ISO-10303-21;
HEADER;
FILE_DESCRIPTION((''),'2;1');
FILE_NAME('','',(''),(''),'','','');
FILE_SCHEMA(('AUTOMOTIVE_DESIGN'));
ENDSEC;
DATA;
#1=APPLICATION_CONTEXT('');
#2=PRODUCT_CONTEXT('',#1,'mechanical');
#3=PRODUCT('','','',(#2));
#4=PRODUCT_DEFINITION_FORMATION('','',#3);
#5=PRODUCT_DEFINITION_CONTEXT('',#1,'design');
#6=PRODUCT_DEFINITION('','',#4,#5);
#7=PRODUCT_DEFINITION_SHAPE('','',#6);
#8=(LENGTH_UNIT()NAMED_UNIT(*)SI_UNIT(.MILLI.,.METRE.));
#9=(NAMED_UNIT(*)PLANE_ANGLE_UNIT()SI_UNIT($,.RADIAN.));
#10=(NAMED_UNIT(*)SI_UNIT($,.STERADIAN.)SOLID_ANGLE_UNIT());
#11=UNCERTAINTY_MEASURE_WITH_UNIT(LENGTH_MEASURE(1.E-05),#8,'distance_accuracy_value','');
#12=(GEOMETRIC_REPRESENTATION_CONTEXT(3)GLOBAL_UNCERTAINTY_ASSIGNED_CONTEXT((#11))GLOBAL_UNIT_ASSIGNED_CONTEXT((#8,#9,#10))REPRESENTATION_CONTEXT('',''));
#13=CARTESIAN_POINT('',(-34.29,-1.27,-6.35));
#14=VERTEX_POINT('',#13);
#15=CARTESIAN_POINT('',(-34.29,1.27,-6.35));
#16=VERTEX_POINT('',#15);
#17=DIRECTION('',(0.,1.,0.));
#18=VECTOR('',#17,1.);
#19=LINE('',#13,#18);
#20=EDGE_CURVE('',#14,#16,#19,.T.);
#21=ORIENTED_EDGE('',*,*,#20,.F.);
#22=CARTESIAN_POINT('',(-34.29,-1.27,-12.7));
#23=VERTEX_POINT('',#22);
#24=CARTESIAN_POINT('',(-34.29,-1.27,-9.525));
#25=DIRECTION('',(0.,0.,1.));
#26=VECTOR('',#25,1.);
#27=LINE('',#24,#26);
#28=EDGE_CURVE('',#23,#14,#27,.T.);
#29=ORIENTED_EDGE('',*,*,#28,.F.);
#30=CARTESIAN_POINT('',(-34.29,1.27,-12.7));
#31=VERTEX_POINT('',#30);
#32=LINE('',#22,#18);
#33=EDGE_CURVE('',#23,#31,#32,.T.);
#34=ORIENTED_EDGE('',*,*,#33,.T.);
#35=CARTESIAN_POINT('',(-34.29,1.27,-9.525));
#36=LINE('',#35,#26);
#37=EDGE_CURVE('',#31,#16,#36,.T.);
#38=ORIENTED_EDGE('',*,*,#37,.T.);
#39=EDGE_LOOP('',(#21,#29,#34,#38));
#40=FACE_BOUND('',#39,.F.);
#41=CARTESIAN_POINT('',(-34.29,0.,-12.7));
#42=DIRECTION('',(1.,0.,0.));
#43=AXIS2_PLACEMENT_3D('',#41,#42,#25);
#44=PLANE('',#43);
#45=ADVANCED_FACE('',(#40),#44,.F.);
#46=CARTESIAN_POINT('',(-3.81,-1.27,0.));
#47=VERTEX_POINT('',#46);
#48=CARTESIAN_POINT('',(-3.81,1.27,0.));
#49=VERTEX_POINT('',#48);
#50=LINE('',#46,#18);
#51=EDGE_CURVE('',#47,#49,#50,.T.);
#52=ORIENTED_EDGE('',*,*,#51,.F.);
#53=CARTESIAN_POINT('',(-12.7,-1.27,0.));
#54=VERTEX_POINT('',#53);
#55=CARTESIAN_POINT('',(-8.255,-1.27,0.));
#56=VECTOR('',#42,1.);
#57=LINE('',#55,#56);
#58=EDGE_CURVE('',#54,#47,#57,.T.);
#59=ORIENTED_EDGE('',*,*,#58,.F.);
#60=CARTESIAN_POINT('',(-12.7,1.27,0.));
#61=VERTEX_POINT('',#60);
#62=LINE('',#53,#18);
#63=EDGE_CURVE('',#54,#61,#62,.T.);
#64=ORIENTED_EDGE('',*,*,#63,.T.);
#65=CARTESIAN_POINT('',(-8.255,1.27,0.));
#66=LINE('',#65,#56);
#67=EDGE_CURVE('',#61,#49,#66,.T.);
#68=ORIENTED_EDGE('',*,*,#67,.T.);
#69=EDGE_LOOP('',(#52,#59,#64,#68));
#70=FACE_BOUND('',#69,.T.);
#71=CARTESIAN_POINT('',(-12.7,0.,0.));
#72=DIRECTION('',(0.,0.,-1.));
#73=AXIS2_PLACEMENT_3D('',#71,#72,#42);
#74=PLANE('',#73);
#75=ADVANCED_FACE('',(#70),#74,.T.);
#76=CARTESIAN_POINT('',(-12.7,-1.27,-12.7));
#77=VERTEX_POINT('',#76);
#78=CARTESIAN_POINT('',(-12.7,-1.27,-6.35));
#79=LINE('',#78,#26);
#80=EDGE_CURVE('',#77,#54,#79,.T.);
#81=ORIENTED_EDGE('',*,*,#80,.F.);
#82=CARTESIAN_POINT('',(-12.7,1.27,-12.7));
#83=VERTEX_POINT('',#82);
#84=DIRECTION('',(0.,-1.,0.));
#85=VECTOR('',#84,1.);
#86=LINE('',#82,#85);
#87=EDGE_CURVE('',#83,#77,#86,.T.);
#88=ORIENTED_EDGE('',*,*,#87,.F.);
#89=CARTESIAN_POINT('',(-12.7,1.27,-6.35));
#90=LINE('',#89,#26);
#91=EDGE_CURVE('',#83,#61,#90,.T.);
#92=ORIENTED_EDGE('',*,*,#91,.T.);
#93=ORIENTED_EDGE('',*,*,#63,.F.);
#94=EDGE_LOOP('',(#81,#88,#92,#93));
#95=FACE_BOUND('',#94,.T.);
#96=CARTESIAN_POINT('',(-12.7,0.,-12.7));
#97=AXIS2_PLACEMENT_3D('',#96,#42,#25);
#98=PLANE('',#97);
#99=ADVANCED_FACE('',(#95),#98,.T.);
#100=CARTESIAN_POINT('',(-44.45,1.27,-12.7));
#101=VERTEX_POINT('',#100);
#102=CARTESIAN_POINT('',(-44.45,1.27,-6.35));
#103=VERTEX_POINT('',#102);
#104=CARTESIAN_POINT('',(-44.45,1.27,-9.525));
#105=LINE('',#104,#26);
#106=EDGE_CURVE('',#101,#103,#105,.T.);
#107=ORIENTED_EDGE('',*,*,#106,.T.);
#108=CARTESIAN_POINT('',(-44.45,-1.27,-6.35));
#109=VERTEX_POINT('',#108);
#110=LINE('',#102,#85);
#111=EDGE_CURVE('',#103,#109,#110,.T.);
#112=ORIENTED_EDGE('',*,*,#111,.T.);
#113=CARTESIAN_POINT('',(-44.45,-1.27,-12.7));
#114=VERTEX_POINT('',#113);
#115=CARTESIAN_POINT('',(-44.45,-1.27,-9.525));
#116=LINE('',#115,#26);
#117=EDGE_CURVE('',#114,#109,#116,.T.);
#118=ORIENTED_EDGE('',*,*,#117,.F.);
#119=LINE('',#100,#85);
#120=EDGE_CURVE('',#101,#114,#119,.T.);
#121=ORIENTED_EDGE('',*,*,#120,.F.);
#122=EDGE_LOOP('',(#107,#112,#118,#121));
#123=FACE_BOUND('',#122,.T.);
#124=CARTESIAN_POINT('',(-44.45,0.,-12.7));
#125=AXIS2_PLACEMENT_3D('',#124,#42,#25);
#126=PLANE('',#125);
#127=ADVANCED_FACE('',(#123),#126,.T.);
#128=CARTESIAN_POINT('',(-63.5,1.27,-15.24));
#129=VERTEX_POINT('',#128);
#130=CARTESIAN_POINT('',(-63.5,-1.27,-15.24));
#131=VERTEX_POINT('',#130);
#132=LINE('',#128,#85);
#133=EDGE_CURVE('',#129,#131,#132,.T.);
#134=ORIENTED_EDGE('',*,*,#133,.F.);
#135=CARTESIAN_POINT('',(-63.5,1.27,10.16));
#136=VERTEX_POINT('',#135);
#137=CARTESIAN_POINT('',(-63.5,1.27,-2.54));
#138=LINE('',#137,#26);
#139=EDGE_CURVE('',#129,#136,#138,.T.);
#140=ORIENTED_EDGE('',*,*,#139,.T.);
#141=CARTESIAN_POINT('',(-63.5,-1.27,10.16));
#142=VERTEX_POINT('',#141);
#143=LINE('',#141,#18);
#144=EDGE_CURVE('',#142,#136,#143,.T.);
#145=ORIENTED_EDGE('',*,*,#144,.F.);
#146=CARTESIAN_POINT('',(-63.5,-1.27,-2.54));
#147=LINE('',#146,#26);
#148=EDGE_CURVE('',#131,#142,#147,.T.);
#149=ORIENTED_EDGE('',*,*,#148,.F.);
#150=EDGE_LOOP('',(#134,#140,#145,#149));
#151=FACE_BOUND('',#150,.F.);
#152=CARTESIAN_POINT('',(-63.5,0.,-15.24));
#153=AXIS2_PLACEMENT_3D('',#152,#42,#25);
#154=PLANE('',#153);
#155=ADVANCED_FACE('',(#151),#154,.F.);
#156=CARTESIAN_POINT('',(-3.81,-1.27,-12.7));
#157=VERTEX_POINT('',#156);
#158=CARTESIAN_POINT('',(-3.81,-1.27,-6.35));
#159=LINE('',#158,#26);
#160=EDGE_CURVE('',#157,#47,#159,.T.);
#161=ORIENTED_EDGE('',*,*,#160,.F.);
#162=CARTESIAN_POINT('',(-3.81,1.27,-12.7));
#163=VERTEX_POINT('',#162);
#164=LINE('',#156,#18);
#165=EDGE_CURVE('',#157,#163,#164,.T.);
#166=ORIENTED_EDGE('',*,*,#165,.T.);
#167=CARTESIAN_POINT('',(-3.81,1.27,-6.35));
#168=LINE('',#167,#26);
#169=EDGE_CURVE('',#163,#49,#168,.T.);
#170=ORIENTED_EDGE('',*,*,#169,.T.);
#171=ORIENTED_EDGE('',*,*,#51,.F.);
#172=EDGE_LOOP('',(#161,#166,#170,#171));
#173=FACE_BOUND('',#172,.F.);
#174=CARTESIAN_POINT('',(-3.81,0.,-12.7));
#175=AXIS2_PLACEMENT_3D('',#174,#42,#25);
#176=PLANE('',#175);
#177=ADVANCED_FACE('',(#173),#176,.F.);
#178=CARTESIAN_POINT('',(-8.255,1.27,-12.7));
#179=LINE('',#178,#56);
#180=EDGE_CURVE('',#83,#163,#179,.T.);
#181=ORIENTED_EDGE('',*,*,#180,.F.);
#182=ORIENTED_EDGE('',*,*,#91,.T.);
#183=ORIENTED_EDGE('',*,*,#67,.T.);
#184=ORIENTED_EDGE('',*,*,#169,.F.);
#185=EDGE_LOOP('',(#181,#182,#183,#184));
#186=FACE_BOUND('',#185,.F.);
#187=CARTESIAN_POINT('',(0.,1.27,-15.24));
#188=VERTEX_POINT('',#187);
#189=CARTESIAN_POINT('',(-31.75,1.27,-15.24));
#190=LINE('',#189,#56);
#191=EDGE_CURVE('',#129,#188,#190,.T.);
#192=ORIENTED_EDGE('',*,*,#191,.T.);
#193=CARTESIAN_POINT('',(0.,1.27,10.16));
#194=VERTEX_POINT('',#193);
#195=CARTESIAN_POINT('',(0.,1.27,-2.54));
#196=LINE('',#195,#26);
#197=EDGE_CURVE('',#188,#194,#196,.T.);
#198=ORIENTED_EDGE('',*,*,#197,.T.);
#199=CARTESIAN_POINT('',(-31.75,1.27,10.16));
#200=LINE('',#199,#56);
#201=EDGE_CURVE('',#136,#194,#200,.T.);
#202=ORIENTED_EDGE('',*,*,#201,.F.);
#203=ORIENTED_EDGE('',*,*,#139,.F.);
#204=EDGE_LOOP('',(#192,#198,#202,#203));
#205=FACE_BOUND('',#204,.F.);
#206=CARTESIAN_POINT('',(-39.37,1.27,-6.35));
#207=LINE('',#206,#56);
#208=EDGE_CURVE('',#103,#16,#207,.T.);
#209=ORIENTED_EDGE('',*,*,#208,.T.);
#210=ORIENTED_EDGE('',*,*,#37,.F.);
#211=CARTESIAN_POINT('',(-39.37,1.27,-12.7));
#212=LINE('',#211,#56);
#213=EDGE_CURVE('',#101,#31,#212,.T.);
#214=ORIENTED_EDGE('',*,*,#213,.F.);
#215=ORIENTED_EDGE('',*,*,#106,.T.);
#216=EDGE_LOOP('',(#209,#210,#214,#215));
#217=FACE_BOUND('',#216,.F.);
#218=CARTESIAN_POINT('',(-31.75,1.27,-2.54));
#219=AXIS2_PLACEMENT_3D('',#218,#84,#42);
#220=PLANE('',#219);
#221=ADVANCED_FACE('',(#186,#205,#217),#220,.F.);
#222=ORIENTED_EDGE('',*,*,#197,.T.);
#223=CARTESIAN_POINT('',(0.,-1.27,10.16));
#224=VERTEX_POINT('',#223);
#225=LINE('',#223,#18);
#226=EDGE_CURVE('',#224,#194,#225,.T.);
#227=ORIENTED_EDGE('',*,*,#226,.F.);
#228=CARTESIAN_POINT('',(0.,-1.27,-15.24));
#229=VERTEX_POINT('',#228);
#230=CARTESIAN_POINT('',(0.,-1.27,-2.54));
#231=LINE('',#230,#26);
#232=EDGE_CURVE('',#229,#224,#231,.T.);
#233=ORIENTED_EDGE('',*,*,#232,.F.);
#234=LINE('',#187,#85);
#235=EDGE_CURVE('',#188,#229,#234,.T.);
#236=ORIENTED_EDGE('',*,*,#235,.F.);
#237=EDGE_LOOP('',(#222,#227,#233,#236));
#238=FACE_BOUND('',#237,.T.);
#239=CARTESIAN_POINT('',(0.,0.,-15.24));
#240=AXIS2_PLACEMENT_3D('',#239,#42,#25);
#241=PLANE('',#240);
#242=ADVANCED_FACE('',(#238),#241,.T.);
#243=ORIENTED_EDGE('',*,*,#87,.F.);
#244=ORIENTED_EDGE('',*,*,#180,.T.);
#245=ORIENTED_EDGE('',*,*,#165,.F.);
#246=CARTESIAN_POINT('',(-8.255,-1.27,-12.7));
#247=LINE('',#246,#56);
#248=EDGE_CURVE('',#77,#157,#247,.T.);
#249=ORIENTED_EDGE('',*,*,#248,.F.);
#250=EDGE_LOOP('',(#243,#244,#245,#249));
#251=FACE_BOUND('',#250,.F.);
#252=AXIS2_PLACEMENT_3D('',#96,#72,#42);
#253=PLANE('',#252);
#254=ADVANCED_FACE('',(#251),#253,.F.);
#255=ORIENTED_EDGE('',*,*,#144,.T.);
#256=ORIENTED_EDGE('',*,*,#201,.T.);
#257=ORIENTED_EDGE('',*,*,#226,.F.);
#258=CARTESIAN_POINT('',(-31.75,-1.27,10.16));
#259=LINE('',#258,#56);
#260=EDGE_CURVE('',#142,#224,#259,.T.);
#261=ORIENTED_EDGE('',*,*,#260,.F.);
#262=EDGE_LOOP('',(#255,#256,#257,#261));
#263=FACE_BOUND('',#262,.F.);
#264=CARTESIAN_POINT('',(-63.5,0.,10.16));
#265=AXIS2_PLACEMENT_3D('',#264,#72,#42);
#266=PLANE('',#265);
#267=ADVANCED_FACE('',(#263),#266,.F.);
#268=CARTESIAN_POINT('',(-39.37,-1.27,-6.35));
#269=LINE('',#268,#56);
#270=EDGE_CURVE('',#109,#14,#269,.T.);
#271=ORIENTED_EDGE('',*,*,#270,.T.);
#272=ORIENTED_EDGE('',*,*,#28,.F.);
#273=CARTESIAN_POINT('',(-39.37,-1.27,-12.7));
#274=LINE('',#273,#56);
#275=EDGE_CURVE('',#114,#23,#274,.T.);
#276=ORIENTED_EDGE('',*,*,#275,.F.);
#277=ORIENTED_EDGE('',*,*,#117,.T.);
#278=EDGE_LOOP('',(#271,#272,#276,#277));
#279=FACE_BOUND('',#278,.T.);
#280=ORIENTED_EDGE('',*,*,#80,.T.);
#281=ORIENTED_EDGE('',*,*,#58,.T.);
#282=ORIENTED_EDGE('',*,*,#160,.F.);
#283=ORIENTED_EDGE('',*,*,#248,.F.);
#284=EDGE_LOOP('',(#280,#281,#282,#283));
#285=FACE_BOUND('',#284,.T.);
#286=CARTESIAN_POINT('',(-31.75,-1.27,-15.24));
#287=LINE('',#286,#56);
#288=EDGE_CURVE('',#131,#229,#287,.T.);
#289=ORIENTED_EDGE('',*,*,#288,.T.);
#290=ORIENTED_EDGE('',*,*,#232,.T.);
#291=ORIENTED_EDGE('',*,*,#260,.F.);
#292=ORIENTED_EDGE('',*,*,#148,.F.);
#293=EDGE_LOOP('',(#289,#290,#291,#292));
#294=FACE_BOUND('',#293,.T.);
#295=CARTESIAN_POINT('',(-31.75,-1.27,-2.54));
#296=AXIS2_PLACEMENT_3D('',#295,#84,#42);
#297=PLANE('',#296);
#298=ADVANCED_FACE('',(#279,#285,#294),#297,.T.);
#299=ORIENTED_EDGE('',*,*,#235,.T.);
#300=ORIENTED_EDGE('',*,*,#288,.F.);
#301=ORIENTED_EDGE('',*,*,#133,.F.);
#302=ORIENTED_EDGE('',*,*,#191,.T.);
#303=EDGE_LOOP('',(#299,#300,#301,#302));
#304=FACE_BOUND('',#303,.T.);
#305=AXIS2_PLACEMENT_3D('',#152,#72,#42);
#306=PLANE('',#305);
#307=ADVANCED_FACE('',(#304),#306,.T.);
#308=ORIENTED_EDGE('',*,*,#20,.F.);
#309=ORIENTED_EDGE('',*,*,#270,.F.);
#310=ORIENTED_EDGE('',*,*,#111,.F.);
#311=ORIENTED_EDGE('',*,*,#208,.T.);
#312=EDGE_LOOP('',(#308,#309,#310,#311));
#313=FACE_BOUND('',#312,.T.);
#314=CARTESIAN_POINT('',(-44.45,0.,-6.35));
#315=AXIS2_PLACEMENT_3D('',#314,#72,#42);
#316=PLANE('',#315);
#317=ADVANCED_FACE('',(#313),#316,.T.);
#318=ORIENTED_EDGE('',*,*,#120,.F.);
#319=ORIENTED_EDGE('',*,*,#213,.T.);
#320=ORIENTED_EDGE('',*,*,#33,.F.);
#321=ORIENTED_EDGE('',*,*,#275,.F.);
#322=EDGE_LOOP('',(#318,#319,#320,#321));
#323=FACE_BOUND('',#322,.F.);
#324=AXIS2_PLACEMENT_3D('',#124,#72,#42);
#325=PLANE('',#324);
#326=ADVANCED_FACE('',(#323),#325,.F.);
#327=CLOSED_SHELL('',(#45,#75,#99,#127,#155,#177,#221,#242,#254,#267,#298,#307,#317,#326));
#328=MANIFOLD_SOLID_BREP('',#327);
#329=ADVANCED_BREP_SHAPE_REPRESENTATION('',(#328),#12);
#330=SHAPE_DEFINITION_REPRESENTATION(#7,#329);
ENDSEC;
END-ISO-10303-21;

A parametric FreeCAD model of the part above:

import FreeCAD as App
import Part
import Sketcher

V = App.Vector
Q = App.Units.Quantity


def add_polygon(sketch, points):
    """Adds a closed chain of lines whose ends are joined by coincident constraints."""
    first, n = sketch.GeometryCount, len(points)
    for a, b in zip(points, points[1:] + points[:1]):
        sketch.addGeometry(Part.LineSegment(App.Vector(*a, 0), App.Vector(*b, 0)), False)
    for i in range(n):
        sketch.addConstraint(Sketcher.Constraint("Coincident", first + i, 2, first + (i + 1) % n, 1))

doc = App.newDocument("Part")
params = doc.addObject("Spreadsheet::Sheet", "Params")
for row, (alias, value) in enumerate([
    ("sketch1_height", "1 in"),
    ("sketch1_width", "2.5 in"),
    ("sketch1_width2", "0.4 in"),
    ("sketch1_height2", "0.5 in"),
    ("sketch1_width3", "0.35 in"),
    ("pad1_length", "0.1 in"),
], start=1):
    params.set(f"A{row}", alias)
    params.set(f"B{row}", "=" + value)
    params.setAlias(f"B{row}", alias)

body = doc.addObject("PartDesign::Body", "Body")

# Sketch on XZ plane
sketch1 = body.newObject("Sketcher::SketchObject", "Sketch")
sketch1.AttachmentSupport = (doc.getObject("XZ_Plane"), [""])
sketch1.MapMode = "FlatFace"
add_polygon(sketch1, [(-64, 10), (-64, -15), (0, -15), (0, 10)])  # lines 0-3
add_polygon(sketch1, [(-34, -13), (-44, -13), (-44, -6), (-34, -6)])  # lines 4-7
add_polygon(sketch1, [(-4, -13), (-13, -13), (-13, 0), (-4, 0)])  # lines 8-11
sketch1.addConstraint(Sketcher.Constraint("Vertical", 0))
sketch1.addConstraint(Sketcher.Constraint("Horizontal", 1))
sketch1.addConstraint(Sketcher.Constraint("Vertical", 2))
sketch1.addConstraint(Sketcher.Constraint("Horizontal", 3))
sketch1.addConstraint(Sketcher.Constraint("Horizontal", 4))
sketch1.addConstraint(Sketcher.Constraint("Vertical", 5))
sketch1.addConstraint(Sketcher.Constraint("Horizontal", 6))
sketch1.addConstraint(Sketcher.Constraint("Vertical", 7))
sketch1.addConstraint(Sketcher.Constraint("Horizontal", 8))
sketch1.addConstraint(Sketcher.Constraint("Vertical", 9))
sketch1.addConstraint(Sketcher.Constraint("Horizontal", 10))
sketch1.addConstraint(Sketcher.Constraint("Vertical", 11))
sketch1.addConstraint(Sketcher.Constraint("PointOnObject", 1, 2, -2))
sketch1.addConstraint(Sketcher.Constraint("PointOnObject", 9, 2, -1))
sketch1.addConstraint(Sketcher.Constraint("Horizontal", 7, 2, 8, 2))
sketch1.addConstraint(Sketcher.Constraint("DistanceY", 0, 2, 0, 1, Q("1 in")))
sketch1.addConstraint(Sketcher.Constraint("DistanceX", 1, 1, 1, 2, Q("2.5 in")))
sketch1.addConstraint(Sketcher.Constraint("DistanceX", 4, 2, 4, 1, Q("0.4 in")))
sketch1.addConstraint(Sketcher.Constraint("DistanceY", 9, 1, 9, 2, Q("0.5 in")))
sketch1.addConstraint(Sketcher.Constraint("DistanceX", 8, 2, 8, 1, Q("0.35 in")))
sketch1.addConstraint(Sketcher.Constraint("DistanceY", 5, 1, 5, 2, Q("0.25 in")))
sketch1.addConstraint(Sketcher.Constraint("DistanceY", 0, 2, -1, 1, Q("0.6 in")))
sketch1.addConstraint(Sketcher.Constraint("DistanceX", 8, 2, -1, 1, Q("0.5 in")))
sketch1.addConstraint(Sketcher.Constraint("DistanceX", 6, 2, 10, 2, Q("1.2 in")))
sketch1.setExpression("Constraints[27]", "Params.sketch1_height")
sketch1.setExpression("Constraints[28]", "Params.sketch1_width")
sketch1.setExpression("Constraints[29]", "Params.sketch1_width2")
sketch1.setExpression("Constraints[30]", "Params.sketch1_height2")
sketch1.setExpression("Constraints[31]", "Params.sketch1_width3")
pad1 = body.newObject("PartDesign::Pad", "Pad")
pad1.Profile = sketch1
pad1.setExpression("Length", "Params.pad1_length")
pad1.Midplane = True

doc.recompute()
